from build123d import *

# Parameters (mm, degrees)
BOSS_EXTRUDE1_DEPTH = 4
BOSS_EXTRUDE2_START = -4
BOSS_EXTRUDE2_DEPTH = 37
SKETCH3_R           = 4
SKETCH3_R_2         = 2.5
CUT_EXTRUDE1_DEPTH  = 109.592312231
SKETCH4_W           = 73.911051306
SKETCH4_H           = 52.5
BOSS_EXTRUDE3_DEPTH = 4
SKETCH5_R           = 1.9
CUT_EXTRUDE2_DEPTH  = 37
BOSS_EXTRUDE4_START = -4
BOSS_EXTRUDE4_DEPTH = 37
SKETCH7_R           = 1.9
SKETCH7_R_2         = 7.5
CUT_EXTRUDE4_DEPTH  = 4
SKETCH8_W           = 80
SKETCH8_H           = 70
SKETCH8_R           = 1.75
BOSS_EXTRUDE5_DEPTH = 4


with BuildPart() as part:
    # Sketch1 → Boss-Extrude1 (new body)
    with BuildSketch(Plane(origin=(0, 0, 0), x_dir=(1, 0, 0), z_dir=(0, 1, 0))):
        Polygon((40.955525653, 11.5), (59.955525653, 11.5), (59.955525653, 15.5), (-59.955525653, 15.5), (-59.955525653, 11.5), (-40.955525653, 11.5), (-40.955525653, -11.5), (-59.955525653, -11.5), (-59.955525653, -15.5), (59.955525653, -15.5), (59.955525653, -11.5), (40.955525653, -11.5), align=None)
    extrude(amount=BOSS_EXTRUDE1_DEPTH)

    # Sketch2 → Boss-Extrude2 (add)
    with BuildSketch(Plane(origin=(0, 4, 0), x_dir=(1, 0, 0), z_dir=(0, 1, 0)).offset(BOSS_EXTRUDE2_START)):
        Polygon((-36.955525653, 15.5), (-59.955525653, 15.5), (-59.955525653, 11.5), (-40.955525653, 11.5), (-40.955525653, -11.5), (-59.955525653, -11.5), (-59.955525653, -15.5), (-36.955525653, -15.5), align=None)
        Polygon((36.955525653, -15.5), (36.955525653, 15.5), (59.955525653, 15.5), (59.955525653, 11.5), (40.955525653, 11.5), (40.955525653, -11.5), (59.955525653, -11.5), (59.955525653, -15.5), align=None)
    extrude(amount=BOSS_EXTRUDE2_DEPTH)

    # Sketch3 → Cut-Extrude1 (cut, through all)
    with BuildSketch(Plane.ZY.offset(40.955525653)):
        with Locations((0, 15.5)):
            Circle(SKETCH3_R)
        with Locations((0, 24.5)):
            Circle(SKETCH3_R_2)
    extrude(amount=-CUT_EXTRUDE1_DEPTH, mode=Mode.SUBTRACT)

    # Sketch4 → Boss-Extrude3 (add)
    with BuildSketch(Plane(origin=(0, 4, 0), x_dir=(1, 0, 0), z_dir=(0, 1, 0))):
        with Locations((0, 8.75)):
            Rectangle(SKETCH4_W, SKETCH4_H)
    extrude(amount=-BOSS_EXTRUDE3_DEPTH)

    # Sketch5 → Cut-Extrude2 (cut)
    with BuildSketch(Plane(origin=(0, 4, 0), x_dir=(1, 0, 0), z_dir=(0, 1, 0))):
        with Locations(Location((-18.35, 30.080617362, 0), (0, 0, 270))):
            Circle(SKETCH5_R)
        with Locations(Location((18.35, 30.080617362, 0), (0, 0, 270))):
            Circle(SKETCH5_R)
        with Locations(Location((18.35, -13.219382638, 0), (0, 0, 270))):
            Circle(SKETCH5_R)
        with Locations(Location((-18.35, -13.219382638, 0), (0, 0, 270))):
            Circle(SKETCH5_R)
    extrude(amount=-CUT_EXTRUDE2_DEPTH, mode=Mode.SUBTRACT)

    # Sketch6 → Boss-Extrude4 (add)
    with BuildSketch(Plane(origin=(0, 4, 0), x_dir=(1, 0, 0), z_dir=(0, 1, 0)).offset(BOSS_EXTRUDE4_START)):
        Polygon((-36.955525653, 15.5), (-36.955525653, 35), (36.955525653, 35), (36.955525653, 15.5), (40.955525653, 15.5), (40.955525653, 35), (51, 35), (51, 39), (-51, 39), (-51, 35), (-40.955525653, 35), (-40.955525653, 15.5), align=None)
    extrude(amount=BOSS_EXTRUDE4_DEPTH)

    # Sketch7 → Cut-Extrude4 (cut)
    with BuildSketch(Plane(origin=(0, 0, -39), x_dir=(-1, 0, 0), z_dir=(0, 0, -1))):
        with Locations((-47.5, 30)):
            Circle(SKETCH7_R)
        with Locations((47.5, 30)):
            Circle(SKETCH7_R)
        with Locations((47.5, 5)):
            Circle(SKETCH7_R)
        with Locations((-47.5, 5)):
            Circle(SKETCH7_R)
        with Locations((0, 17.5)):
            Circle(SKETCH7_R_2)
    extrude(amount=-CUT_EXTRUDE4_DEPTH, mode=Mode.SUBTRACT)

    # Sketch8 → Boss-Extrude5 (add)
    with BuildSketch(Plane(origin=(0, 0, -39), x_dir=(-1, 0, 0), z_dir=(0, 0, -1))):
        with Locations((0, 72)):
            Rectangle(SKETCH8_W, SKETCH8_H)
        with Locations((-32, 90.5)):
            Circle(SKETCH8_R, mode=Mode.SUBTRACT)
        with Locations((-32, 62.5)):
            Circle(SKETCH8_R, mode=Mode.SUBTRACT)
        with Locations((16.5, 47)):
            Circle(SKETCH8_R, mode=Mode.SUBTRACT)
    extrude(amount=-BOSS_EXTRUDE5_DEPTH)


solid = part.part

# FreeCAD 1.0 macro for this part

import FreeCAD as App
import Part
import Sketcher
Q = App.Units.Quantity


def add_polygon(sketch, points):
    """Adds a closed chain of lines whose ends are joined by coincident constraints."""
    first, n = sketch.GeometryCount, len(points)
    for a, b in zip(points, points[1:] + points[:1]):
        sketch.addGeometry(Part.LineSegment(App.Vector(*a, 0), App.Vector(*b, 0)), False)
    for i in range(n):
        sketch.addConstraint(Sketcher.Constraint("Coincident", first + i, 2, first + (i + 1) % n, 1))

doc = App.newDocument("Part")
params = doc.addObject("Spreadsheet::Sheet", "Params")
for row, (alias, value) in enumerate([
    ("sketch1_width", "19 mm"),
    ("sketch1_height", "4 mm"),
    ("sketch1_height2", "23 mm"),
    ("pad1_length", "4 mm"),
    ("sketch2_width", "23 mm"),
    ("sketch2_width2", "19 mm"),
    ("sketch2_height", "4 mm"),
    ("pad2_length", "37 mm"),
    ("sketch3_diameter", "8 mm"),
    ("sketch3_diameter2", "5 mm"),
    ("sketch4_height", "52.5 mm"),
    ("pad3_length", "4 mm"),
    ("sketch5_diameter", "3.8 mm"),
    ("pocket2_length", "37 mm"),
    ("sketch6_width", "4 mm"),
    ("sketch6_width2", "102 mm"),
    ("sketch6_height", "19.5 mm"),
    ("pad4_length", "37 mm"),
    ("sketch7_diameter", "15 mm"),
    ("sketch7_diameter2", "3.8 mm"),
    ("pocket3_length", "4 mm"),
    ("sketch8_diameter", "3.5 mm"),
    ("sketch8_width", "80 mm"),
    ("sketch8_height", "70 mm"),
    ("pad5_length", "4 mm"),
], start=1):
    params.set(f"A{row}", alias)
    params.set(f"B{row}", "=" + value)
    params.setAlias(f"B{row}", alias)

body = doc.addObject("PartDesign::Body", "Body")

sketch1 = body.newObject("Sketcher::SketchObject", "Sketch")
sketch1.AttachmentSupport = (doc.getObject("XZ_Plane"), [""])
sketch1.MapMode = "FlatFace"
add_polygon(sketch1, [(41, -11.5), (60, -11.5), (60, -15.5), (-60, -15.5), (-60, -11.5), (-41, -11.5), (-41, 11.5), (-60, 11.5), (-60, 15.5), (60, 15.5), (60, 11.5), (41, 11.5)])
sketch1.addConstraint(Sketcher.Constraint("Horizontal", 0))
sketch1.addConstraint(Sketcher.Constraint("Vertical", 1))
sketch1.addConstraint(Sketcher.Constraint("Horizontal", 2))
sketch1.addConstraint(Sketcher.Constraint("Vertical", 3))
sketch1.addConstraint(Sketcher.Constraint("Horizontal", 4))
sketch1.addConstraint(Sketcher.Constraint("Vertical", 5))
sketch1.addConstraint(Sketcher.Constraint("Horizontal", 6))
sketch1.addConstraint(Sketcher.Constraint("Vertical", 7))
sketch1.addConstraint(Sketcher.Constraint("Horizontal", 8))
sketch1.addConstraint(Sketcher.Constraint("Vertical", 9))
sketch1.addConstraint(Sketcher.Constraint("Horizontal", 10))
sketch1.addConstraint(Sketcher.Constraint("Vertical", 11))
sketch1.addConstraint(Sketcher.Constraint("Symmetric", 0, 2, 6, 2, -1, 1))
sketch1.addConstraint(Sketcher.Constraint("Symmetric", 2, 2, 8, 2, -1, 1))
sketch1.addConstraint(Sketcher.Constraint("Symmetric", 4, 2, 10, 2, -1, 1))
sketch1.addConstraint(Sketcher.Constraint("Symmetric", 0, 2, 3, 2, -2))
sketch1.addConstraint(Sketcher.Constraint("DistanceX", 0, 1, 0, 2, Q("19 mm")))
sketch1.addConstraint(Sketcher.Constraint("DistanceY", 1, 2, 1, 1, Q("4 mm")))
sketch1.addConstraint(Sketcher.Constraint("DistanceY", 5, 1, 5, 2, Q("23 mm")))
sketch1.addConstraint(Sketcher.Constraint("DistanceX", 2, 2, 2, 1, Q("119.911051 mm")))
sketch1.setExpression("Constraints[28]", "Params.sketch1_width")
sketch1.setExpression("Constraints[29]", "Params.sketch1_height")
sketch1.setExpression("Constraints[30]", "Params.sketch1_height2")
pad1 = body.newObject("PartDesign::Pad", "Pad")
pad1.Profile = sketch1
pad1.setExpression("Length", "Params.pad1_length")
pad1.Reversed = True

sketch2 = body.newObject("Sketcher::SketchObject", "Sketch001")
sketch2.AttachmentSupport = (doc.getObject("XZ_Plane"), [""])
sketch2.MapMode = "FlatFace"
add_polygon(sketch2, [(-37, -15.5), (-60, -15.5), (-60, -11.5), (-41, -11.5), (-41, 11.5), (-60, 11.5), (-60, 15.5), (-37, 15.5)])
add_polygon(sketch2, [(37, -15.5), (37, 15.5), (60, 15.5), (60, 11.5), (41, 11.5), (41, -11.5), (60, -11.5), (60, -15.5)])
sketch2.addConstraint(Sketcher.Constraint("Horizontal", 0))
sketch2.addConstraint(Sketcher.Constraint("Vertical", 1))
sketch2.addConstraint(Sketcher.Constraint("Horizontal", 2))
sketch2.addConstraint(Sketcher.Constraint("Vertical", 3))
sketch2.addConstraint(Sketcher.Constraint("Horizontal", 4))
sketch2.addConstraint(Sketcher.Constraint("Vertical", 5))
sketch2.addConstraint(Sketcher.Constraint("Horizontal", 6))
sketch2.addConstraint(Sketcher.Constraint("Vertical", 7))
sketch2.addConstraint(Sketcher.Constraint("Vertical", 8))
sketch2.addConstraint(Sketcher.Constraint("Horizontal", 9))
sketch2.addConstraint(Sketcher.Constraint("Vertical", 10))
sketch2.addConstraint(Sketcher.Constraint("Horizontal", 11))
sketch2.addConstraint(Sketcher.Constraint("Vertical", 12))
sketch2.addConstraint(Sketcher.Constraint("Horizontal", 13))
sketch2.addConstraint(Sketcher.Constraint("Vertical", 14))
sketch2.addConstraint(Sketcher.Constraint("Horizontal", 15))
sketch2.addConstraint(Sketcher.Constraint("Symmetric", 7, 2, 8, 2, -1, 1))
sketch2.addConstraint(Sketcher.Constraint("Symmetric", 1, 2, 10, 2, -1, 1))
sketch2.addConstraint(Sketcher.Constraint("Symmetric", 3, 2, 12, 2, -1, 1))
sketch2.addConstraint(Sketcher.Constraint("Symmetric", 5, 2, 14, 2, -1, 1))
sketch2.addConstraint(Sketcher.Constraint("Symmetric", 5, 2, 9, 2, -2))
sketch2.addConstraint(Sketcher.Constraint("Horizontal", 4, 2, 10, 2))
sketch2.addConstraint(Sketcher.Constraint("Equal", 15, 3))
sketch2.addConstraint(Sketcher.Constraint("DistanceX", 0, 2, 0, 1, Q("23 mm")))
sketch2.addConstraint(Sketcher.Constraint("DistanceX", 2, 1, 2, 2, Q("19 mm")))
sketch2.addConstraint(Sketcher.Constraint("DistanceY", 1, 1, 1, 2, Q("4 mm")))
sketch2.addConstraint(Sketcher.Constraint("DistanceX", 6, 2, 8, 2, Q("73.911051 mm")))
sketch2.setExpression("Constraints[39]", "Params.sketch2_width")
sketch2.setExpression("Constraints[40]", "Params.sketch2_width2")
sketch2.setExpression("Constraints[41]", "Params.sketch2_height")
pad2 = body.newObject("PartDesign::Pad", "Pad001")
pad2.Profile = sketch2
pad2.setExpression("Length", "Params.pad2_length")
pad2.Reversed = True

sketch3 = body.newObject("Sketcher::SketchObject", "Sketch002")
sketch3.AttachmentSupport = (doc.getObject("YZ_Plane"), [""])
sketch3.MapMode = "FlatFace"
sketch3.AttachmentOffset = App.Placement(App.Vector(0, 0, -40.955526), App.Rotation())
sketch3.addGeometry(Part.Circle(App.Vector(15.5, 0, 0), App.Vector(0, 0, 1), 4), False)
sketch3.addGeometry(Part.Circle(App.Vector(24.5, 0, 0), App.Vector(0, 0, 1), 2.5), False)
sketch3.addConstraint(Sketcher.Constraint("PointOnObject", 0, 3, -1))
sketch3.addConstraint(Sketcher.Constraint("PointOnObject", 1, 3, -1))
sketch3.addConstraint(Sketcher.Constraint("Diameter", 0, Q("8 mm")))
sketch3.addConstraint(Sketcher.Constraint("Diameter", 1, Q("5 mm")))
sketch3.addConstraint(Sketcher.Constraint("DistanceX", 0, 3, 1, 3, Q("9 mm")))
sketch3.addConstraint(Sketcher.Constraint("DistanceX", -1, 1, 0, 3, Q("15.5 mm")))
sketch3.setExpression("Constraints[2]", "Params.sketch3_diameter")
sketch3.setExpression("Constraints[3]", "Params.sketch3_diameter2")
pocket1 = body.newObject("PartDesign::Pocket", "Pocket")
pocket1.Profile = sketch3
pocket1.Type = "ThroughAll"
pocket1.Reversed = True

sketch4 = body.newObject("Sketcher::SketchObject", "Sketch003")
sketch4.AttachmentSupport = (doc.getObject("XZ_Plane"), [""])
sketch4.MapMode = "FlatFace"
sketch4.AttachmentOffset = App.Placement(App.Vector(0, 0, -4), App.Rotation())
add_polygon(sketch4, [(-37, -35), (-37, 18), (37, 18), (37, -35)])
sketch4.addConstraint(Sketcher.Constraint("Vertical", 0))
sketch4.addConstraint(Sketcher.Constraint("Horizontal", 1))
sketch4.addConstraint(Sketcher.Constraint("Vertical", 2))
sketch4.addConstraint(Sketcher.Constraint("Horizontal", 3))
sketch4.addConstraint(Sketcher.Constraint("DistanceY", 0, 1, 0, 2, Q("52.5 mm")))
sketch4.addConstraint(Sketcher.Constraint("DistanceY", 2, 2, -1, 1, Q("35 mm")))
sketch4.addConstraint(Sketcher.Constraint("DistanceX", 1, 1, 1, 2, Q("73.911051 mm")))
sketch4.addConstraint(Sketcher.Constraint("DistanceX", 0, 2, -1, 1, Q("36.955526 mm")))
sketch4.setExpression("Constraints[8]", "Params.sketch4_height")
pad3 = body.newObject("PartDesign::Pad", "Pad002")
pad3.Profile = sketch4
pad3.setExpression("Length", "Params.pad3_length")

sketch5 = body.newObject("Sketcher::SketchObject", "Sketch004")
sketch5.AttachmentSupport = (doc.getObject("XZ_Plane"), [""])
sketch5.MapMode = "FlatFace"
sketch5.AttachmentOffset = App.Placement(App.Vector(0, 0, -4), App.Rotation())
sketch5.addGeometry(Part.Circle(App.Vector(-18.4, -30.1, 0), App.Vector(0, 0, 1), 1.9), False)
sketch5.addGeometry(Part.Circle(App.Vector(18.4, -30.1, 0), App.Vector(0, 0, 1), 1.9), False)
sketch5.addGeometry(Part.Circle(App.Vector(18.4, 13.2, 0), App.Vector(0, 0, 1), 1.9), False)
sketch5.addGeometry(Part.Circle(App.Vector(-18.4, 13.2, 0), App.Vector(0, 0, 1), 1.9), False)
sketch5.addConstraint(Sketcher.Constraint("Equal", 0, 1))
sketch5.addConstraint(Sketcher.Constraint("Equal", 1, 2))
sketch5.addConstraint(Sketcher.Constraint("Equal", 2, 3))
sketch5.addConstraint(Sketcher.Constraint("Symmetric", 0, 3, 1, 3, -2))
sketch5.addConstraint(Sketcher.Constraint("Symmetric", 2, 3, 3, 3, -2))
sketch5.addConstraint(Sketcher.Constraint("Vertical", 1, 3, 2, 3))
sketch5.addConstraint(Sketcher.Constraint("Diameter", 0, Q("3.8 mm")))
sketch5.addConstraint(Sketcher.Constraint("DistanceX", 0, 3, 1, 3, Q("36.7 mm")))
sketch5.addConstraint(Sketcher.Constraint("DistanceY", 1, 3, 2, 3, Q("43.3 mm")))
sketch5.addConstraint(Sketcher.Constraint("DistanceY", 0, 3, -1, 1, Q("30.080617 mm")))
sketch5.setExpression("Constraints[6]", "Params.sketch5_diameter")
pocket2 = body.newObject("PartDesign::Pocket", "Pocket001")
pocket2.Profile = sketch5
pocket2.setExpression("Length", "Params.pocket2_length")
pocket2.Reversed = True

sketch6 = body.newObject("Sketcher::SketchObject", "Sketch005")
sketch6.AttachmentSupport = (doc.getObject("XZ_Plane"), [""])
sketch6.MapMode = "FlatFace"
add_polygon(sketch6, [(-37, -15.5), (-37, -35), (37, -35), (37, -15.5), (41, -15.5), (41, -35), (51, -35), (51, -39), (-51, -39), (-51, -35), (-41, -35), (-41, -15.5)])
sketch6.addConstraint(Sketcher.Constraint("Vertical", 0))
sketch6.addConstraint(Sketcher.Constraint("Horizontal", 1))
sketch6.addConstraint(Sketcher.Constraint("Vertical", 2))
sketch6.addConstraint(Sketcher.Constraint("Horizontal", 3))
sketch6.addConstraint(Sketcher.Constraint("Vertical", 4))
sketch6.addConstraint(Sketcher.Constraint("Horizontal", 5))
sketch6.addConstraint(Sketcher.Constraint("Vertical", 6))
sketch6.addConstraint(Sketcher.Constraint("Horizontal", 7))
sketch6.addConstraint(Sketcher.Constraint("Vertical", 8))
sketch6.addConstraint(Sketcher.Constraint("Horizontal", 9))
sketch6.addConstraint(Sketcher.Constraint("Vertical", 10))
sketch6.addConstraint(Sketcher.Constraint("Horizontal", 11))
sketch6.addConstraint(Sketcher.Constraint("Symmetric", 5, 2, 8, 2, -2))
sketch6.addConstraint(Sketcher.Constraint("Symmetric", 3, 2, 10, 2, -2))
sketch6.addConstraint(Sketcher.Constraint("Horizontal", 1, 2, 4, 2))
sketch6.addConstraint(Sketcher.Constraint("Equal", 3, 11))
sketch6.addConstraint(Sketcher.Constraint("Equal", 11, 6))
sketch6.addConstraint(Sketcher.Constraint("DistanceX", 3, 1, 3, 2, Q("4 mm")))
sketch6.addConstraint(Sketcher.Constraint("DistanceX", 7, 2, 7, 1, Q("102 mm")))
sketch6.addConstraint(Sketcher.Constraint("DistanceY", 0, 2, 0, 1, Q("19.5 mm")))
sketch6.addConstraint(Sketcher.Constraint("DistanceY", 0, 2, -1, 1, Q("35 mm")))
sketch6.addConstraint(Sketcher.Constraint("DistanceX", 1, 1, 1, 2, Q("73.911051 mm")))
sketch6.setExpression("Constraints[29]", "Params.sketch6_width")
sketch6.setExpression("Constraints[30]", "Params.sketch6_width2")
sketch6.setExpression("Constraints[31]", "Params.sketch6_height")
pad4 = body.newObject("PartDesign::Pad", "Pad003")
pad4.Profile = sketch6
pad4.setExpression("Length", "Params.pad4_length")
pad4.Reversed = True

sketch7 = body.newObject("Sketcher::SketchObject", "Sketch006")
sketch7.AttachmentSupport = (doc.getObject("XY_Plane"), [""])
sketch7.MapMode = "FlatFace"
sketch7.AttachmentOffset = App.Placement(App.Vector(0, 0, -39), App.Rotation())
sketch7.addGeometry(Part.Circle(App.Vector(47.5, 30, 0), App.Vector(0, 0, 1), 1.9), False)
sketch7.addGeometry(Part.Circle(App.Vector(-47.5, 30, 0), App.Vector(0, 0, 1), 1.9), False)
sketch7.addGeometry(Part.Circle(App.Vector(-47.5, 5, 0), App.Vector(0, 0, 1), 1.9), False)
sketch7.addGeometry(Part.Circle(App.Vector(47.5, 5, 0), App.Vector(0, 0, 1), 1.9), False)
sketch7.addGeometry(Part.Circle(App.Vector(0, 17.5, 0), App.Vector(0, 0, 1), 7.5), False)
sketch7.addConstraint(Sketcher.Constraint("Equal", 0, 1))
sketch7.addConstraint(Sketcher.Constraint("Equal", 1, 2))
sketch7.addConstraint(Sketcher.Constraint("Equal", 2, 3))
sketch7.addConstraint(Sketcher.Constraint("Symmetric", 0, 3, 1, 3, -2))
sketch7.addConstraint(Sketcher.Constraint("Symmetric", 2, 3, 3, 3, -2))
sketch7.addConstraint(Sketcher.Constraint("PointOnObject", 4, 3, -2))
sketch7.addConstraint(Sketcher.Constraint("Vertical", 1, 3, 2, 3))
sketch7.addConstraint(Sketcher.Constraint("Diameter", 4, Q("15 mm")))
sketch7.addConstraint(Sketcher.Constraint("Diameter", 0, Q("3.8 mm")))
sketch7.addConstraint(Sketcher.Constraint("DistanceY", -1, 1, 0, 3, Q("30 mm")))
sketch7.addConstraint(Sketcher.Constraint("DistanceY", -1, 1, 2, 3, Q("5 mm")))
sketch7.addConstraint(Sketcher.Constraint("DistanceX", 1, 3, 0, 3, Q("95 mm")))
sketch7.addConstraint(Sketcher.Constraint("DistanceY", -1, 1, 4, 3, Q("17.5 mm")))
sketch7.setExpression("Constraints[7]", "Params.sketch7_diameter")
sketch7.setExpression("Constraints[8]", "Params.sketch7_diameter2")
pocket3 = body.newObject("PartDesign::Pocket", "Pocket002")
pocket3.Profile = sketch7
pocket3.setExpression("Length", "Params.pocket3_length")
pocket3.Reversed = True

sketch8 = body.newObject("Sketcher::SketchObject", "Sketch007")
sketch8.AttachmentSupport = (doc.getObject("XY_Plane"), [""])
sketch8.MapMode = "FlatFace"
sketch8.AttachmentOffset = App.Placement(App.Vector(0, 0, -39), App.Rotation())
add_polygon(sketch8, [(40, 107), (40, 37), (-40, 37), (-40, 107)])
sketch8.addGeometry(Part.Circle(App.Vector(32, 62.5, 0), App.Vector(0, 0, 1), 1.8), False)
sketch8.addGeometry(Part.Circle(App.Vector(-16.5, 47, 0), App.Vector(0, 0, 1), 1.8), False)
sketch8.addGeometry(Part.Circle(App.Vector(32, 90.5, 0), App.Vector(0, 0, 1), 1.8), False)
sketch8.addConstraint(Sketcher.Constraint("Vertical", 0))
sketch8.addConstraint(Sketcher.Constraint("Horizontal", 1))
sketch8.addConstraint(Sketcher.Constraint("Vertical", 2))
sketch8.addConstraint(Sketcher.Constraint("Horizontal", 3))
sketch8.addConstraint(Sketcher.Constraint("Equal", 4, 5))
sketch8.addConstraint(Sketcher.Constraint("Equal", 5, 6))
sketch8.addConstraint(Sketcher.Constraint("Vertical", 4, 3, 6, 3))
sketch8.addConstraint(Sketcher.Constraint("Diameter", 4, Q("3.5 mm")))
sketch8.addConstraint(Sketcher.Constraint("DistanceX", 1, 2, 1, 1, Q("80 mm")))
sketch8.addConstraint(Sketcher.Constraint("DistanceY", 0, 2, 0, 1, Q("70 mm")))
sketch8.addConstraint(Sketcher.Constraint("DistanceX", -1, 1, 4, 3, Q("32 mm")))
sketch8.addConstraint(Sketcher.Constraint("DistanceY", -1, 1, 5, 3, Q("47 mm")))
sketch8.addConstraint(Sketcher.Constraint("DistanceX", -1, 1, 0, 2, Q("40 mm")))
sketch8.addConstraint(Sketcher.Constraint("DistanceY", -1, 1, 0, 2, Q("37 mm")))
sketch8.addConstraint(Sketcher.Constraint("DistanceY", 4, 3, 6, 3, Q("28 mm")))
sketch8.addConstraint(Sketcher.Constraint("DistanceY", -1, 1, 4, 3, Q("62.5 mm")))
sketch8.addConstraint(Sketcher.Constraint("DistanceX", 5, 3, -1, 1, Q("16.5 mm")))
sketch8.setExpression("Constraints[11]", "Params.sketch8_diameter")
sketch8.setExpression("Constraints[12]", "Params.sketch8_width")
sketch8.setExpression("Constraints[13]", "Params.sketch8_height")
pad5 = body.newObject("PartDesign::Pad", "Pad004")
pad5.Profile = sketch8
pad5.setExpression("Length", "Params.pad5_length")

doc.recompute()
